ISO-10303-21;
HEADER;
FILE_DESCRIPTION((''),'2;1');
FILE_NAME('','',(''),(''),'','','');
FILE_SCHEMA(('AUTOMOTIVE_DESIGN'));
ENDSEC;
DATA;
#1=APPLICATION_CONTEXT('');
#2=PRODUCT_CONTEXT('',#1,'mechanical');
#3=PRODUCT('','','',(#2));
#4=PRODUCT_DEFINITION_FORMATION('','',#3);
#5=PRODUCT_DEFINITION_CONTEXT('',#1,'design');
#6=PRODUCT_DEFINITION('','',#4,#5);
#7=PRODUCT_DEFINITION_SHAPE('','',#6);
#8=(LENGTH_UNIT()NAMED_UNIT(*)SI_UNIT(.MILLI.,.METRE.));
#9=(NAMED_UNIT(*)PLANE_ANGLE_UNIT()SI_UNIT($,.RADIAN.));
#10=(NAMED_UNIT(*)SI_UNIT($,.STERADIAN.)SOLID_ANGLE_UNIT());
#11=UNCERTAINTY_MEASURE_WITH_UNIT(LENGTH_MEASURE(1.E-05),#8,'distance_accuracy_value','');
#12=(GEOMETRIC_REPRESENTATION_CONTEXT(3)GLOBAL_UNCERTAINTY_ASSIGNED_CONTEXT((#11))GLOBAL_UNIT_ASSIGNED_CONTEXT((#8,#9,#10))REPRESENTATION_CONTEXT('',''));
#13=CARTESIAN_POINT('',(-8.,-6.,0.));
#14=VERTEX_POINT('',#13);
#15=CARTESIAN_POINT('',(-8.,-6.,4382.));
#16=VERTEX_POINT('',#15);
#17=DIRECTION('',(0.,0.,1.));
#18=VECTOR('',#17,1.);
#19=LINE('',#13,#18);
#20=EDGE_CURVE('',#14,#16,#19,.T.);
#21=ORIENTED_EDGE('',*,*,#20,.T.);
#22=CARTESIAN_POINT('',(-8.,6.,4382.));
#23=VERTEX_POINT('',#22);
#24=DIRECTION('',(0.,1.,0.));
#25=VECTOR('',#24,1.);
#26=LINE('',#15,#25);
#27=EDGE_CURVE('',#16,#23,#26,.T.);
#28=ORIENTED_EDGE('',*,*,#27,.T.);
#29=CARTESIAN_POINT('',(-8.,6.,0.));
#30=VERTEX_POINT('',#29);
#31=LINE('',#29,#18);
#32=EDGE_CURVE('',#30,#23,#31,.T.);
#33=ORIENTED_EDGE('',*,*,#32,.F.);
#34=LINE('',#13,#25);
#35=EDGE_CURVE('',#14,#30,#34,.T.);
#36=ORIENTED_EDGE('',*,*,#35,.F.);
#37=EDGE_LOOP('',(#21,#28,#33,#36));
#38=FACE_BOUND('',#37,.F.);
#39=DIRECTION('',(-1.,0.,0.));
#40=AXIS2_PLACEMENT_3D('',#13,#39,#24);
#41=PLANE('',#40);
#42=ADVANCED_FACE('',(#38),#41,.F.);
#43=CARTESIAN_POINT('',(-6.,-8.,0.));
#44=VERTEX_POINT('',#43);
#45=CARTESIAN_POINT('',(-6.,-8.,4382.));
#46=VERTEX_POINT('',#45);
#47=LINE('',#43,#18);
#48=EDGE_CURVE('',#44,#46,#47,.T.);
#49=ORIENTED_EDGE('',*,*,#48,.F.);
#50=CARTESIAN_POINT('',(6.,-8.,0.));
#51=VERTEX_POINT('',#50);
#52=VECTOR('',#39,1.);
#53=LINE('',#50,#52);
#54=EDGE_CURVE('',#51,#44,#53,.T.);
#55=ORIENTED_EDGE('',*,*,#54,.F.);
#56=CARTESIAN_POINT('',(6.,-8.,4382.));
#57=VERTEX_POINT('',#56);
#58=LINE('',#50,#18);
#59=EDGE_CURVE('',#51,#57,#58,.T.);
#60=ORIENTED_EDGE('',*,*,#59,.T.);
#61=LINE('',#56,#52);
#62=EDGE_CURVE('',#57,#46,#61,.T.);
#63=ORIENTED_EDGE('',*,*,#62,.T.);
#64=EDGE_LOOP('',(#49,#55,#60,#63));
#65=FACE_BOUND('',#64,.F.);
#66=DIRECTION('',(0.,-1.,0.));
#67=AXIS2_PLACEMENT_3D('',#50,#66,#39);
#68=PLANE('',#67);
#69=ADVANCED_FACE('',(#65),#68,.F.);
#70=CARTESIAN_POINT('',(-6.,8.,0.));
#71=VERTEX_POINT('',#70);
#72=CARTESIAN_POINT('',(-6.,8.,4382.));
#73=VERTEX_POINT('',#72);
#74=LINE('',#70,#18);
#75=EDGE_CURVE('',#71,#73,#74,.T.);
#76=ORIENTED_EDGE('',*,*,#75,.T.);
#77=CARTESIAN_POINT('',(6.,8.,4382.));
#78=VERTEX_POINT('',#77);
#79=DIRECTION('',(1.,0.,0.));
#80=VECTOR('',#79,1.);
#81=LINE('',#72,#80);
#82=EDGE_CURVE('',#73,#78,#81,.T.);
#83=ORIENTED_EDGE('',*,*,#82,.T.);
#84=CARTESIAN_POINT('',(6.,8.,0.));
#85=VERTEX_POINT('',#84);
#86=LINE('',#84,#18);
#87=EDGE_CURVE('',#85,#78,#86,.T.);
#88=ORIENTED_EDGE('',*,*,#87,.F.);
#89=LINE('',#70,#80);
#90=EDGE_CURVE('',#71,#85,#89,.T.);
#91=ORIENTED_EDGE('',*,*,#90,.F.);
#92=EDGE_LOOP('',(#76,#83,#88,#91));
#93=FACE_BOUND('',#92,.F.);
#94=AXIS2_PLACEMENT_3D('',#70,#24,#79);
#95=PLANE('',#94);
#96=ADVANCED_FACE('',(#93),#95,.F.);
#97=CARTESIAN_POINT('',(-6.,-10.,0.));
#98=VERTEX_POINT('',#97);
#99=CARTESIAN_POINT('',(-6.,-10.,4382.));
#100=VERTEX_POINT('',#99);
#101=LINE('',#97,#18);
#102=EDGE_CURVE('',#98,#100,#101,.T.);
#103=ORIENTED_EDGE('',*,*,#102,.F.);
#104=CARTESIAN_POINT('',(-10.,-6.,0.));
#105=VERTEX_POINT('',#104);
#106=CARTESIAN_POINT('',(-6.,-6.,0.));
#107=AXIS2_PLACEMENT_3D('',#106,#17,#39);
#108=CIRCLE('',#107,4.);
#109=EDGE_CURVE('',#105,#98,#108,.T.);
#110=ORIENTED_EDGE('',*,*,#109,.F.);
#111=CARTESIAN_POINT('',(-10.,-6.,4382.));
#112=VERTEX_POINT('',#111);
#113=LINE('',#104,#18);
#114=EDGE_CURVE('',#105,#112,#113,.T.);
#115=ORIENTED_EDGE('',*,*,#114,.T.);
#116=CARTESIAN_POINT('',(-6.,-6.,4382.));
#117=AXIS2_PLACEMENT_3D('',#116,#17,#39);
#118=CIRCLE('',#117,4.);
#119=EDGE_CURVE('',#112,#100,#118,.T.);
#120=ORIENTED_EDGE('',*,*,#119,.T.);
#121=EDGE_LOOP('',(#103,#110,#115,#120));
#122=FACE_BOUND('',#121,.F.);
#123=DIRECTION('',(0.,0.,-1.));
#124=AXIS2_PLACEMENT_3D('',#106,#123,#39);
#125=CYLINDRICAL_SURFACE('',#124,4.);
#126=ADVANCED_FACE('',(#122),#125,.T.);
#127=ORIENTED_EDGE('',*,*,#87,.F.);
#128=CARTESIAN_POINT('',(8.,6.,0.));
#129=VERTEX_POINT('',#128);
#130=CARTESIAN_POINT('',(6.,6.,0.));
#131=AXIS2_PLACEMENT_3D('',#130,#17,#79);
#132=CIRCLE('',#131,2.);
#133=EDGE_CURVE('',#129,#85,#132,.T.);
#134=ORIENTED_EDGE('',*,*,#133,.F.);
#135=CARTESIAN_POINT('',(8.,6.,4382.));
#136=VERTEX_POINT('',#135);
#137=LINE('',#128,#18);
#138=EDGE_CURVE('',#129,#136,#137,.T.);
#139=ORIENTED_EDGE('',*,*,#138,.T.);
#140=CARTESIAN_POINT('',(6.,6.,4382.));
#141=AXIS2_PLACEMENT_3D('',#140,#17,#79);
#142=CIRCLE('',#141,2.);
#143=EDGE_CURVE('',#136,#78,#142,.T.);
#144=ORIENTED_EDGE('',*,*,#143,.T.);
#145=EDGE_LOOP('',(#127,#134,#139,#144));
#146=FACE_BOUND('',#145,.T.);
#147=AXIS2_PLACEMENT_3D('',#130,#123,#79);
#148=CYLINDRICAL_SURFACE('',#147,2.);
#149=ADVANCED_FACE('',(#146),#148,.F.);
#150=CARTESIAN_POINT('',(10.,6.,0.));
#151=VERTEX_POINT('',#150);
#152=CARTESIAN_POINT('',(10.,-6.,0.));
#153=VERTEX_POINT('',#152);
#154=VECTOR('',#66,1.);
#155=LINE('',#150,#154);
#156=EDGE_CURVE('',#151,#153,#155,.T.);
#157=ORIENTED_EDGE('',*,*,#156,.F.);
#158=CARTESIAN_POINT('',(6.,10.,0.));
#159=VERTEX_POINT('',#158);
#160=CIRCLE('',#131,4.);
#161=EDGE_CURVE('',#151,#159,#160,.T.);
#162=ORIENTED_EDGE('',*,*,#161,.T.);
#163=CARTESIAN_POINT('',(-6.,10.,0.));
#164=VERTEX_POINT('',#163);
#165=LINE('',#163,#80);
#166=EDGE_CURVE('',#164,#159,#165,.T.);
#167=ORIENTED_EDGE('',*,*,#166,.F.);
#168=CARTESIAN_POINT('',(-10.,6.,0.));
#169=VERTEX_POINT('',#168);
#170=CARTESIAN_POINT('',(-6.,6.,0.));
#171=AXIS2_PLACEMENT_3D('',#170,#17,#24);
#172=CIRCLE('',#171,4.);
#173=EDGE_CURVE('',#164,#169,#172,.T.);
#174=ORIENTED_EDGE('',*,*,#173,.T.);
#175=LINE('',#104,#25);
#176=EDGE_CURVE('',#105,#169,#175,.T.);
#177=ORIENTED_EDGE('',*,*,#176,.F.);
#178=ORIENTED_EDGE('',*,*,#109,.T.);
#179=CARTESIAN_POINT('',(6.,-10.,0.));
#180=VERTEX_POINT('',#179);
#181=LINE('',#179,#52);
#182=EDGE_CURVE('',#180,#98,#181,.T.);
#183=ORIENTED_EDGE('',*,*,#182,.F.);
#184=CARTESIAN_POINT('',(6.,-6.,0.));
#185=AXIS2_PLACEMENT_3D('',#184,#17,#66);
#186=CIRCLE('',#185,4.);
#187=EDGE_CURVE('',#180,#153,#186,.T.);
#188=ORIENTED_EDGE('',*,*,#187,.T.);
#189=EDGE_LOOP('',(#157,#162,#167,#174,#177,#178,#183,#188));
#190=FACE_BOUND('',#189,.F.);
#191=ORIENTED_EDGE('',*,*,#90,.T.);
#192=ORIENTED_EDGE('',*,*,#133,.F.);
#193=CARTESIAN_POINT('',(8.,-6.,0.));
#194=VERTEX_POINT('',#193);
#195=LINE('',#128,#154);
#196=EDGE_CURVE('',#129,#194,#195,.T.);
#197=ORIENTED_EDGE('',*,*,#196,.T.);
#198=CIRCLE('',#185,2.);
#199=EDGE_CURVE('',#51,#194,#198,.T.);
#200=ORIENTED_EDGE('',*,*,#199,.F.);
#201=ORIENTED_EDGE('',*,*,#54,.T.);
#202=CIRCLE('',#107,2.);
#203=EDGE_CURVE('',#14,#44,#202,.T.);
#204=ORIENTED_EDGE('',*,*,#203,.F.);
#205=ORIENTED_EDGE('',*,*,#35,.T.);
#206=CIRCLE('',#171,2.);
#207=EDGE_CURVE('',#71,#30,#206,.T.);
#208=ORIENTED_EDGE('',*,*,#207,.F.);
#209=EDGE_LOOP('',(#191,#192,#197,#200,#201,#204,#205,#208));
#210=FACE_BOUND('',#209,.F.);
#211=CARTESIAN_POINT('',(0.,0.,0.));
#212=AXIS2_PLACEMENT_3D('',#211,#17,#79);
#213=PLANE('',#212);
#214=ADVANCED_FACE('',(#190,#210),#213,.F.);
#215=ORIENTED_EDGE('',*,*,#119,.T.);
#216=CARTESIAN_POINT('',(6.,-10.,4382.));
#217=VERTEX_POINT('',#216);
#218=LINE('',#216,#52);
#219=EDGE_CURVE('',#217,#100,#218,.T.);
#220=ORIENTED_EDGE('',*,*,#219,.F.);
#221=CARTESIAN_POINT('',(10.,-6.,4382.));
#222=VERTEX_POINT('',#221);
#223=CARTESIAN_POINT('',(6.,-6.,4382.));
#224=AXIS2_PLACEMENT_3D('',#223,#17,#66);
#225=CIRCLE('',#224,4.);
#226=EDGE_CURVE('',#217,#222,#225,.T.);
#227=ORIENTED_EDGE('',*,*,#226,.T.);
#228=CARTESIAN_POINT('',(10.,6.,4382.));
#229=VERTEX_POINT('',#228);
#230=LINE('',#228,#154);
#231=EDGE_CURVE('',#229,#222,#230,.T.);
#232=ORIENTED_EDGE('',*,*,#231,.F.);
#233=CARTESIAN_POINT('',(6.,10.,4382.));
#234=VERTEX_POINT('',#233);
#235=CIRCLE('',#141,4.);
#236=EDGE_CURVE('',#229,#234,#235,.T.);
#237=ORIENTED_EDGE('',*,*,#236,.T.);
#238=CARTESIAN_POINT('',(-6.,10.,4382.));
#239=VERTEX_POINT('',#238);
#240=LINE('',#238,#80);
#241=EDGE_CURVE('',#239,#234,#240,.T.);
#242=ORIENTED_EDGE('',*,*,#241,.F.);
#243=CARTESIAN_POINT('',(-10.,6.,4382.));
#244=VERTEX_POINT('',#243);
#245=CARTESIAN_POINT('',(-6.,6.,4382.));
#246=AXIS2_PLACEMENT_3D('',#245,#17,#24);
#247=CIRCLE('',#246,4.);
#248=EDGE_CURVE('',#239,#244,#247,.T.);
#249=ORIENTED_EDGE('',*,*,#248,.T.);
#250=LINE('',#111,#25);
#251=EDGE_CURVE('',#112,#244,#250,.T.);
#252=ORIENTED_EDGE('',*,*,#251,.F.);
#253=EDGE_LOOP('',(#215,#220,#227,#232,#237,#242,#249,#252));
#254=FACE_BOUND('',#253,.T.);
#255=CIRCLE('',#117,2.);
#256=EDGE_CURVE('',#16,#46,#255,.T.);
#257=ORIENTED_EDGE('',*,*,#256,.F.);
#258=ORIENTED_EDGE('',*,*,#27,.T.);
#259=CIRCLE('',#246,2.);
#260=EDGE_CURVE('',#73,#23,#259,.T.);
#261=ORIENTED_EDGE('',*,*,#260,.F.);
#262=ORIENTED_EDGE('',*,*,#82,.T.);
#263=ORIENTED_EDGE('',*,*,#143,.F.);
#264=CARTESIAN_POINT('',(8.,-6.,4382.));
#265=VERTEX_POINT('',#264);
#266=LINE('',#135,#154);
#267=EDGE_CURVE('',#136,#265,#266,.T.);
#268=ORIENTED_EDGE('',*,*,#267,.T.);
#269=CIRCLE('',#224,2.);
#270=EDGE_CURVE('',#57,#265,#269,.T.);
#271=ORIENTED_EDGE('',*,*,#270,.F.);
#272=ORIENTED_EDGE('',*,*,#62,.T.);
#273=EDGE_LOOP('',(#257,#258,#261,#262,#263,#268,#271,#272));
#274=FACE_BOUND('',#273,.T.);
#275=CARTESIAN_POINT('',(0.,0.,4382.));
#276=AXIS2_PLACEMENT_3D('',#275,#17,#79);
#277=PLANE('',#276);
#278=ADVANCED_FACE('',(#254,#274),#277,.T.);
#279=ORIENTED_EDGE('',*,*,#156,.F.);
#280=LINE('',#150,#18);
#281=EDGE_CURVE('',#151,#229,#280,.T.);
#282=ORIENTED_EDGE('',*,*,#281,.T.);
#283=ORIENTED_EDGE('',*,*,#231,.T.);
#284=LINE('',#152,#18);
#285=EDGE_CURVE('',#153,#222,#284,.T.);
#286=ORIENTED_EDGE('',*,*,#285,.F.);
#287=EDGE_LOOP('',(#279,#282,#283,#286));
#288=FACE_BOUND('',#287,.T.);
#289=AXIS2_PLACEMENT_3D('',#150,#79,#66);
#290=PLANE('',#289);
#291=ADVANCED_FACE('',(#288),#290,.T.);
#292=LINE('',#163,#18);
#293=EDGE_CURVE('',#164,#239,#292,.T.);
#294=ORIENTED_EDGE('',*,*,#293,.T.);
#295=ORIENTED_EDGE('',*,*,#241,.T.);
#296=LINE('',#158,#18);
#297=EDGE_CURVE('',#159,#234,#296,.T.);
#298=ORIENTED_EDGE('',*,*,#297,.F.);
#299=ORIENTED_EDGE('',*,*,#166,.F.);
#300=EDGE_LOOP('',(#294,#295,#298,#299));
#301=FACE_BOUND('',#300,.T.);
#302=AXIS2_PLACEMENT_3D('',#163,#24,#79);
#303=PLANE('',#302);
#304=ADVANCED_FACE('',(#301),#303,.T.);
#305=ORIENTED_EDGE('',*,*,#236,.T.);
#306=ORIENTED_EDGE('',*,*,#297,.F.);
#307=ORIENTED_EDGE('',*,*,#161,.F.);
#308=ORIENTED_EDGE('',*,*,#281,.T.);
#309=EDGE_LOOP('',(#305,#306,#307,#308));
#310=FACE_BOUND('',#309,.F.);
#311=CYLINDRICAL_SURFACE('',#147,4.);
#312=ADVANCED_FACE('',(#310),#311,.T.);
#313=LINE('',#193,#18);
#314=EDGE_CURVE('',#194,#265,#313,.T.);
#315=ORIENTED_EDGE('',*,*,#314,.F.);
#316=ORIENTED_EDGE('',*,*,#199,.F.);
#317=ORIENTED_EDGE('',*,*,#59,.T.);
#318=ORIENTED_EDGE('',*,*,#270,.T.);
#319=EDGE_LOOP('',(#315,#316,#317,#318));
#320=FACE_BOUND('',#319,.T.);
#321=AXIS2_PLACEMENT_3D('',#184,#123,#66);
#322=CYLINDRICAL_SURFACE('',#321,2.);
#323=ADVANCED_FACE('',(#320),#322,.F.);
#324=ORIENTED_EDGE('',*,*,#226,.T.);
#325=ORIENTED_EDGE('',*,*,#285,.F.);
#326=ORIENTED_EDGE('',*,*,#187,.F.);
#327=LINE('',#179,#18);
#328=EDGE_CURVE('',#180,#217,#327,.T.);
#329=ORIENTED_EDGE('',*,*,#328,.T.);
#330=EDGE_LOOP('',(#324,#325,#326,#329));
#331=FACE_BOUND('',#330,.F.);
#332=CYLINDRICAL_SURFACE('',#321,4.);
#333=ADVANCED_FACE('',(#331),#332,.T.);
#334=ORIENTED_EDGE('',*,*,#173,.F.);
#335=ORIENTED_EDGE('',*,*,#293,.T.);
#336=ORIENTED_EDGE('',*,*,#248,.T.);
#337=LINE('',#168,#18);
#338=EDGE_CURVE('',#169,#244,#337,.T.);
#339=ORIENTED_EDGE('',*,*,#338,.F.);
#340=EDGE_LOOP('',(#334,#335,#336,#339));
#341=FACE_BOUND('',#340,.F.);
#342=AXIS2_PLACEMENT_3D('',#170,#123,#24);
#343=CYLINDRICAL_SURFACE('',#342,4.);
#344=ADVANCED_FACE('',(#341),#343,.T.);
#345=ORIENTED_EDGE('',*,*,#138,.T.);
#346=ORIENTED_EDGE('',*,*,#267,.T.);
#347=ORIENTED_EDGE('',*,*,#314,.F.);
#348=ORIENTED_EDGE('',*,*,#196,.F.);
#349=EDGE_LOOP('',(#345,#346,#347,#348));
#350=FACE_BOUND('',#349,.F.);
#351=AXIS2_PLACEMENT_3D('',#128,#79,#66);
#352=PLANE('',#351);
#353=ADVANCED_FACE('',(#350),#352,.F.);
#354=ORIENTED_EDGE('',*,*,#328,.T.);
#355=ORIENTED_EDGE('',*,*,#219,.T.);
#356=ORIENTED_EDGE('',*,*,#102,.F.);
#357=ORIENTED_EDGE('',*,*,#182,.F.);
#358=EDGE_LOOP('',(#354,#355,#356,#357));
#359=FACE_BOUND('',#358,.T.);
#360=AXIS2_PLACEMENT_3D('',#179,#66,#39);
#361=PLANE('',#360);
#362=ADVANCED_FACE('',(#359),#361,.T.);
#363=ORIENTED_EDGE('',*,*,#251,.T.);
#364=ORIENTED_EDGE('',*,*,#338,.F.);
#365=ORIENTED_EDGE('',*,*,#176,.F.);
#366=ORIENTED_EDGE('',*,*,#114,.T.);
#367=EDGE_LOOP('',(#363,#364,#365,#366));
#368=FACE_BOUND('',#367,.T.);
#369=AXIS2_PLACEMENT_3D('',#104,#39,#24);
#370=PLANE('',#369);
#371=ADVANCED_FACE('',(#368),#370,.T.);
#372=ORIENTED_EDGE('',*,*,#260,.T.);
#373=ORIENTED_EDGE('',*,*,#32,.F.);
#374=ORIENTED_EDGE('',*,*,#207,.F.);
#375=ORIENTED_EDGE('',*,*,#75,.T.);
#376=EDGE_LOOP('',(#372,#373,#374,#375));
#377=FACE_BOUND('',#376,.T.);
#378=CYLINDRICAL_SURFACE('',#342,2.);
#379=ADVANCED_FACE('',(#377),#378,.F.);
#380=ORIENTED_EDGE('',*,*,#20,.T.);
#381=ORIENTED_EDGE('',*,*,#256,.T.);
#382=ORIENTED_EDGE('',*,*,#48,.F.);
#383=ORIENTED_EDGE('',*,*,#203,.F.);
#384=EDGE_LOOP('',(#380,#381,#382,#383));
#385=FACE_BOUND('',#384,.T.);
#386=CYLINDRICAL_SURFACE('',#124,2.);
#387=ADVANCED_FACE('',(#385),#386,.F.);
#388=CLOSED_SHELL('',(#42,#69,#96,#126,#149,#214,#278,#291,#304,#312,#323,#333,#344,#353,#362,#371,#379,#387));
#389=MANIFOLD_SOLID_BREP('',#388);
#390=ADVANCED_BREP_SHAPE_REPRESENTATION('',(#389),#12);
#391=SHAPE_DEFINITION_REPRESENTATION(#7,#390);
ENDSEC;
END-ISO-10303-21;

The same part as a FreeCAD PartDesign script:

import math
import FreeCAD as App
import Part
import Sketcher

doc = App.newDocument("Part")
params = doc.addObject("Spreadsheet::Sheet", "Params")
for row, (alias, value) in enumerate([
    ("sketch1_radius", "4 mm"),
    ("sketch1_radius2", "2 mm"),
    ("pad1_length", "4382 mm"),
], start=1):
    params.set(f"A{row}", alias)
    params.set(f"B{row}", "=" + value)
    params.setAlias(f"B{row}", alias)

body = doc.addObject("PartDesign::Body", "Body")

# Sketch on XY plane
sketch1 = doc.addObject("Sketcher::SketchObject", "Sketch")
body.addObject(sketch1)
sketch1.AttachmentSupport = (doc.XY_Plane, [""])
sketch1.MapMode = "FlatFace"
sketch1.addGeometry(Part.LineSegment(App.Vector(-10, 6, 0), App.Vector(-10, -6, 0)), False)
sketch1.addGeometry(Part.ArcOfCircle(Part.Circle(App.Vector(-6, -6, 0), App.Vector(0, 0, 1), 4), math.radians(180), math.radians(270)), False)
sketch1.addGeometry(Part.LineSegment(App.Vector(-6, -10, 0), App.Vector(6, -10, 0)), False)
sketch1.addGeometry(Part.ArcOfCircle(Part.Circle(App.Vector(6, -6, 0), App.Vector(0, 0, 1), 4), math.radians(-90), math.radians(0)), False)
sketch1.addGeometry(Part.LineSegment(App.Vector(10, -6, 0), App.Vector(10, 6, 0)), False)
sketch1.addGeometry(Part.ArcOfCircle(Part.Circle(App.Vector(6, 6, 0), App.Vector(0, 0, 1), 4), math.radians(0), math.radians(90)), False)
sketch1.addGeometry(Part.LineSegment(App.Vector(6, 10, 0), App.Vector(-6, 10, 0)), False)
sketch1.addGeometry(Part.ArcOfCircle(Part.Circle(App.Vector(-6, 6, 0), App.Vector(0, 0, 1), 4), math.radians(90), math.radians(180)), False)
sketch1.addGeometry(Part.ArcOfCircle(Part.Circle(App.Vector(-6, 6, 0), App.Vector(0, 0, 1), 2), math.radians(90), math.radians(180)), False)
sketch1.addGeometry(Part.LineSegment(App.Vector(-6, 8, 0), App.Vector(6, 8, 0)), False)
sketch1.addGeometry(Part.ArcOfCircle(Part.Circle(App.Vector(6, 6, 0), App.Vector(0, 0, 1), 2), math.radians(0), math.radians(90)), False)
sketch1.addGeometry(Part.LineSegment(App.Vector(8, 6, 0), App.Vector(8, -6, 0)), False)
sketch1.addGeometry(Part.ArcOfCircle(Part.Circle(App.Vector(6, -6, 0), App.Vector(0, 0, 1), 2), math.radians(-90), math.radians(0)), False)
sketch1.addGeometry(Part.LineSegment(App.Vector(6, -8, 0), App.Vector(-6, -8, 0)), False)
sketch1.addGeometry(Part.ArcOfCircle(Part.Circle(App.Vector(-6, -6, 0), App.Vector(0, 0, 1), 2), math.radians(180), math.radians(270)), False)
sketch1.addGeometry(Part.LineSegment(App.Vector(-8, -6, 0), App.Vector(-8, 6, 0)), False)
sketch1.addConstraint(Sketcher.Constraint("Tangent", 0, 2, 1, 1))
sketch1.addConstraint(Sketcher.Constraint("Tangent", 1, 2, 2, 1))
sketch1.addConstraint(Sketcher.Constraint("Tangent", 2, 2, 3, 1))
sketch1.addConstraint(Sketcher.Constraint("Tangent", 3, 2, 4, 1))
sketch1.addConstraint(Sketcher.Constraint("Tangent", 4, 2, 5, 1))
sketch1.addConstraint(Sketcher.Constraint("Tangent", 5, 2, 6, 1))
sketch1.addConstraint(Sketcher.Constraint("Tangent", 6, 2, 7, 1))
sketch1.addConstraint(Sketcher.Constraint("Tangent", 7, 2, 0, 1))
sketch1.addConstraint(Sketcher.Constraint("Tangent", 8, 1, 9, 1))
sketch1.addConstraint(Sketcher.Constraint("Tangent", 9, 2, 10, 2))
sketch1.addConstraint(Sketcher.Constraint("Tangent", 10, 1, 11, 1))
sketch1.addConstraint(Sketcher.Constraint("Tangent", 11, 2, 12, 2))
sketch1.addConstraint(Sketcher.Constraint("Tangent", 12, 1, 13, 1))
sketch1.addConstraint(Sketcher.Constraint("Tangent", 13, 2, 14, 2))
sketch1.addConstraint(Sketcher.Constraint("Tangent", 14, 1, 15, 1))
sketch1.addConstraint(Sketcher.Constraint("Tangent", 15, 2, 8, 2))
sketch1.addConstraint(Sketcher.Constraint("Vertical", 0))
sketch1.addConstraint(Sketcher.Constraint("Horizontal", 2))
sketch1.addConstraint(Sketcher.Constraint("Vertical", 4))
sketch1.addConstraint(Sketcher.Constraint("Horizontal", 6))
sketch1.addConstraint(Sketcher.Constraint("Horizontal", 9))
sketch1.addConstraint(Sketcher.Constraint("Vertical", 11))
sketch1.addConstraint(Sketcher.Constraint("Horizontal", 13))
sketch1.addConstraint(Sketcher.Constraint("Vertical", 15))
sketch1.addConstraint(Sketcher.Constraint("Coincident", 8, 3, 7, 3))
sketch1.addConstraint(Sketcher.Constraint("Coincident", 10, 3, 5, 3))
sketch1.addConstraint(Sketcher.Constraint("Coincident", 12, 3, 3, 3))
sketch1.addConstraint(Sketcher.Constraint("Equal", 1, 3))
sketch1.addConstraint(Sketcher.Constraint("Equal", 3, 5))
sketch1.addConstraint(Sketcher.Constraint("Equal", 5, 7))
sketch1.addConstraint(Sketcher.Constraint("Equal", 12, 14))
sketch1.addConstraint(Sketcher.Constraint("Symmetric", 1, 3, 5, 3, -1, 1))
sketch1.addConstraint(Sketcher.Constraint("Equal", 13, 0))
sketch1.addConstraint(Sketcher.Constraint("Radius", 1, 4.0))
sketch1.addConstraint(Sketcher.Constraint("Radius", 8, 2.0))
sketch1.addConstraint(Sketcher.Constraint("DistanceX", 0, 2, -1, 1, 10.0))
sketch1.setExpression("Constraints[33]", "Params.sketch1_radius")
sketch1.setExpression("Constraints[34]", "Params.sketch1_radius2")
pad1 = doc.addObject("PartDesign::Pad", "Pad")
body.addObject(pad1)
pad1.Profile = sketch1
pad1.setExpression("Length", "Params.pad1_length")

doc.recompute()
